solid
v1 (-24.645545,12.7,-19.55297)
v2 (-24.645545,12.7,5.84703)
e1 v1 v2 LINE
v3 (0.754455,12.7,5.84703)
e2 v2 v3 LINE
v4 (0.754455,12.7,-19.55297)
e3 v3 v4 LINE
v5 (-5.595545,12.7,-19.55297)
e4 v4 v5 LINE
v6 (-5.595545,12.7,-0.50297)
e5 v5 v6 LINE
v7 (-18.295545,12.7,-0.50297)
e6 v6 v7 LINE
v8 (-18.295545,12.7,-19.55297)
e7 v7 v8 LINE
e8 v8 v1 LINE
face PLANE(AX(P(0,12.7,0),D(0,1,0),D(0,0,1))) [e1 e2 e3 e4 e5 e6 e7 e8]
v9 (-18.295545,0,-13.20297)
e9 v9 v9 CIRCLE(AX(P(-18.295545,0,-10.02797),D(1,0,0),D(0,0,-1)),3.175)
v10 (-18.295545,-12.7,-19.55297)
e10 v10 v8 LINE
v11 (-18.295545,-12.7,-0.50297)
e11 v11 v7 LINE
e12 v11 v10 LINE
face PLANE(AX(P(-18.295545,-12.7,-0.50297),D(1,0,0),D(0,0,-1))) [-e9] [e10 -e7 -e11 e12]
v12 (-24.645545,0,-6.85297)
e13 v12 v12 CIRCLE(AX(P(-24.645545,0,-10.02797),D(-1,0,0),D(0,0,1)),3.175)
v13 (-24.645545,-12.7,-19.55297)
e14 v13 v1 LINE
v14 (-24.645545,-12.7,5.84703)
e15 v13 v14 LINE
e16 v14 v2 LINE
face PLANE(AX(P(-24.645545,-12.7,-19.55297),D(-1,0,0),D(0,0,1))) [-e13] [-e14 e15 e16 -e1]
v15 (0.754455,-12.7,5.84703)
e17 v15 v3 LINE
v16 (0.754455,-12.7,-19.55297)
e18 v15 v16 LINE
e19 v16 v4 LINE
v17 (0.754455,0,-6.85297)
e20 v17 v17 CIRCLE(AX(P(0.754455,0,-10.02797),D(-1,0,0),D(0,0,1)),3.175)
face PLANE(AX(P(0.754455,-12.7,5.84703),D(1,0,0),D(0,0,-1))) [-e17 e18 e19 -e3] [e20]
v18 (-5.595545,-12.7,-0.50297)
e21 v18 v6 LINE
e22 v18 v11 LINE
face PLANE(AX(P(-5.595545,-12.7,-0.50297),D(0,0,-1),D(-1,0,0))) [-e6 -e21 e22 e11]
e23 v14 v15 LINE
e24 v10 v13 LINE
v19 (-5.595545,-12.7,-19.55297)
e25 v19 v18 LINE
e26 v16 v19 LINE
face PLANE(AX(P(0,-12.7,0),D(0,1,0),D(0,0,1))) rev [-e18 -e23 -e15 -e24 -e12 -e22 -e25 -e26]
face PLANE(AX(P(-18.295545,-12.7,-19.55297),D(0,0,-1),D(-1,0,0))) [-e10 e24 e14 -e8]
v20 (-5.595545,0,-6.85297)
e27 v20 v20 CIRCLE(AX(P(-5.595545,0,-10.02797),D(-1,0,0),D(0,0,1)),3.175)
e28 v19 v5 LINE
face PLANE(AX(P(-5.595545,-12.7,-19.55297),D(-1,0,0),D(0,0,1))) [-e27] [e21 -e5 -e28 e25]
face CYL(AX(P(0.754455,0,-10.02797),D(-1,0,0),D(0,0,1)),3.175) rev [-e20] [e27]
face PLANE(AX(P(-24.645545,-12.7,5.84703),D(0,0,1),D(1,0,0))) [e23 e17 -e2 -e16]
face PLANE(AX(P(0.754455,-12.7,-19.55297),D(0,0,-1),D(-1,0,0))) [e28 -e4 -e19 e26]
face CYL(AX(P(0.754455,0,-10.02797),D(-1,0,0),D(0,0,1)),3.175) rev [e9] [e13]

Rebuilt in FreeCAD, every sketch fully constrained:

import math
import FreeCAD as App
import Part
import Sketcher
Q = App.Units.Quantity

doc = App.newDocument("Part")
body = doc.addObject("PartDesign::Body", "Body")

# Sketch on XZ plane
sketch1 = body.newObject("Sketcher::SketchObject", "Sketch")
sketch1.AttachmentSupport = (doc.getObject("XZ_Plane"), [""])
sketch1.MapMode = "FlatFace"
sketch1.addGeometry(Part.LineSegment(App.Vector(-24.645545, 5.84703, 0), App.Vector(0.754455, 5.84703, 0)), False)
sketch1.addGeometry(Part.LineSegment(App.Vector(0.754455, 5.84703, 0), App.Vector(0.754455, -19.55297, 0)), False)
sketch1.addGeometry(Part.LineSegment(App.Vector(0.754455, -19.55297, 0), App.Vector(-5.595545, -19.55297, 0)), False)
sketch1.addGeometry(Part.LineSegment(App.Vector(-5.595545, -19.55297, 0), App.Vector(-5.595545, -0.50297, 0)), False)
sketch1.addGeometry(Part.LineSegment(App.Vector(-5.595545, -0.50297, 0), App.Vector(-18.295545, -0.50297, 0)), False)
sketch1.addGeometry(Part.LineSegment(App.Vector(-18.295545, -0.50297, 0), App.Vector(-18.295545, -19.55297, 0)), False)
sketch1.addGeometry(Part.LineSegment(App.Vector(-18.295545, -19.55297, 0), App.Vector(-24.645545, -19.55297, 0)), False)
sketch1.addGeometry(Part.LineSegment(App.Vector(-24.645545, -19.55297, 0), App.Vector(-24.645545, 5.84703, 0)), False)
sketch1.addConstraint(Sketcher.Constraint("Coincident", 0, 2, 1, 1))
sketch1.addConstraint(Sketcher.Constraint("Coincident", 1, 2, 2, 1))
sketch1.addConstraint(Sketcher.Constraint("Coincident", 2, 2, 3, 1))
sketch1.addConstraint(Sketcher.Constraint("Coincident", 3, 2, 4, 1))
sketch1.addConstraint(Sketcher.Constraint("Coincident", 4, 2, 5, 1))
sketch1.addConstraint(Sketcher.Constraint("Coincident", 5, 2, 6, 1))
sketch1.addConstraint(Sketcher.Constraint("Coincident", 6, 2, 7, 1))
sketch1.addConstraint(Sketcher.Constraint("Coincident", 7, 2, 0, 1))
sketch1.addConstraint(Sketcher.Constraint("Horizontal", 0))
sketch1.addConstraint(Sketcher.Constraint("Vertical", 1))
sketch1.addConstraint(Sketcher.Constraint("Horizontal", 2))
sketch1.addConstraint(Sketcher.Constraint("Vertical", 3))
sketch1.addConstraint(Sketcher.Constraint("Horizontal", 4))
sketch1.addConstraint(Sketcher.Constraint("Vertical", 5))
sketch1.addConstraint(Sketcher.Constraint("Horizontal", 6))
sketch1.addConstraint(Sketcher.Constraint("Vertical", 7))
sketch1.addConstraint(Sketcher.Constraint("Horizontal", 2, 2, 5, 2))
sketch1.addConstraint(Sketcher.Constraint("Equal", 2, 6))
sketch1.addConstraint(Sketcher.Constraint("Equal", 0, 1))
sketch1.addConstraint(Sketcher.Constraint("DistanceX", 0, 1, 0, 2, Q("1 in")))
sketch1.addConstraint(Sketcher.Constraint("DistanceX", 4, 2, 4, 1, Q("0.5 in")))
sketch1.addConstraint(Sketcher.Constraint("DistanceY", 3, 1, 3, 2, Q("0.75 in")))
sketch1.addConstraint(Sketcher.Constraint("DistanceY", -1, 1, 0, 2, 5.84703))
sketch1.addConstraint(Sketcher.Constraint("DistanceX", -1, 1, 0, 2, 0.754455))
pad1 = body.newObject("PartDesign::Pad", "Pad")
pad1.Profile = sketch1
pad1.Type = "TwoLengths"
pad1.Length = Q("0.5 in")
pad1.Length2 = Q("0.5 in")
pad1.Reversed = True

# Sketch on YZ plane
sketch2 = body.newObject("Sketcher::SketchObject", "Sketch001")
sketch2.AttachmentSupport = (doc.getObject("YZ_Plane"), [""])
sketch2.MapMode = "FlatFace"
sketch2.AttachmentOffset = App.Placement(App.Vector(0, 0, -24.645545), App.Rotation())
sketch2.addGeometry(Part.ArcOfCircle(Part.Circle(App.Vector(0, -10.02797, 0), App.Vector(0, 0, 1), 3.175), math.radians(180), math.radians(360)), False)
sketch2.addGeometry(Part.ArcOfCircle(Part.Circle(App.Vector(0, -10.02797, 0), App.Vector(0, 0, 1), 3.175), math.radians(90), math.radians(180)), False)
sketch2.addGeometry(Part.ArcOfCircle(Part.Circle(App.Vector(0, -10.02797, 0), App.Vector(0, 0, 1), 3.175), math.radians(0), math.radians(90)), False)
sketch2.addConstraint(Sketcher.Constraint("Tangent", 0, 1, 1, 2))
sketch2.addConstraint(Sketcher.Constraint("Tangent", 1, 1, 2, 2))
sketch2.addConstraint(Sketcher.Constraint("Tangent", 2, 1, 0, 2))
sketch2.addConstraint(Sketcher.Constraint("Symmetric", 0, 1, 2, 1, -2))
sketch2.addConstraint(Sketcher.Constraint("PointOnObject", 1, 1, -2))
sketch2.addConstraint(Sketcher.Constraint("Horizontal", 2, 3, 0, 1))
sketch2.addConstraint(Sketcher.Constraint("Radius", 0, Q("0.125 in")))
sketch2.addConstraint(Sketcher.Constraint("DistanceY", 0, 3, -1, 1, 10.02797))
pocket1 = body.newObject("PartDesign::Pocket", "Pocket")
pocket1.Profile = sketch2
pocket1.Type = "ThroughAll"
pocket1.Reversed = True

doc.recompute()
